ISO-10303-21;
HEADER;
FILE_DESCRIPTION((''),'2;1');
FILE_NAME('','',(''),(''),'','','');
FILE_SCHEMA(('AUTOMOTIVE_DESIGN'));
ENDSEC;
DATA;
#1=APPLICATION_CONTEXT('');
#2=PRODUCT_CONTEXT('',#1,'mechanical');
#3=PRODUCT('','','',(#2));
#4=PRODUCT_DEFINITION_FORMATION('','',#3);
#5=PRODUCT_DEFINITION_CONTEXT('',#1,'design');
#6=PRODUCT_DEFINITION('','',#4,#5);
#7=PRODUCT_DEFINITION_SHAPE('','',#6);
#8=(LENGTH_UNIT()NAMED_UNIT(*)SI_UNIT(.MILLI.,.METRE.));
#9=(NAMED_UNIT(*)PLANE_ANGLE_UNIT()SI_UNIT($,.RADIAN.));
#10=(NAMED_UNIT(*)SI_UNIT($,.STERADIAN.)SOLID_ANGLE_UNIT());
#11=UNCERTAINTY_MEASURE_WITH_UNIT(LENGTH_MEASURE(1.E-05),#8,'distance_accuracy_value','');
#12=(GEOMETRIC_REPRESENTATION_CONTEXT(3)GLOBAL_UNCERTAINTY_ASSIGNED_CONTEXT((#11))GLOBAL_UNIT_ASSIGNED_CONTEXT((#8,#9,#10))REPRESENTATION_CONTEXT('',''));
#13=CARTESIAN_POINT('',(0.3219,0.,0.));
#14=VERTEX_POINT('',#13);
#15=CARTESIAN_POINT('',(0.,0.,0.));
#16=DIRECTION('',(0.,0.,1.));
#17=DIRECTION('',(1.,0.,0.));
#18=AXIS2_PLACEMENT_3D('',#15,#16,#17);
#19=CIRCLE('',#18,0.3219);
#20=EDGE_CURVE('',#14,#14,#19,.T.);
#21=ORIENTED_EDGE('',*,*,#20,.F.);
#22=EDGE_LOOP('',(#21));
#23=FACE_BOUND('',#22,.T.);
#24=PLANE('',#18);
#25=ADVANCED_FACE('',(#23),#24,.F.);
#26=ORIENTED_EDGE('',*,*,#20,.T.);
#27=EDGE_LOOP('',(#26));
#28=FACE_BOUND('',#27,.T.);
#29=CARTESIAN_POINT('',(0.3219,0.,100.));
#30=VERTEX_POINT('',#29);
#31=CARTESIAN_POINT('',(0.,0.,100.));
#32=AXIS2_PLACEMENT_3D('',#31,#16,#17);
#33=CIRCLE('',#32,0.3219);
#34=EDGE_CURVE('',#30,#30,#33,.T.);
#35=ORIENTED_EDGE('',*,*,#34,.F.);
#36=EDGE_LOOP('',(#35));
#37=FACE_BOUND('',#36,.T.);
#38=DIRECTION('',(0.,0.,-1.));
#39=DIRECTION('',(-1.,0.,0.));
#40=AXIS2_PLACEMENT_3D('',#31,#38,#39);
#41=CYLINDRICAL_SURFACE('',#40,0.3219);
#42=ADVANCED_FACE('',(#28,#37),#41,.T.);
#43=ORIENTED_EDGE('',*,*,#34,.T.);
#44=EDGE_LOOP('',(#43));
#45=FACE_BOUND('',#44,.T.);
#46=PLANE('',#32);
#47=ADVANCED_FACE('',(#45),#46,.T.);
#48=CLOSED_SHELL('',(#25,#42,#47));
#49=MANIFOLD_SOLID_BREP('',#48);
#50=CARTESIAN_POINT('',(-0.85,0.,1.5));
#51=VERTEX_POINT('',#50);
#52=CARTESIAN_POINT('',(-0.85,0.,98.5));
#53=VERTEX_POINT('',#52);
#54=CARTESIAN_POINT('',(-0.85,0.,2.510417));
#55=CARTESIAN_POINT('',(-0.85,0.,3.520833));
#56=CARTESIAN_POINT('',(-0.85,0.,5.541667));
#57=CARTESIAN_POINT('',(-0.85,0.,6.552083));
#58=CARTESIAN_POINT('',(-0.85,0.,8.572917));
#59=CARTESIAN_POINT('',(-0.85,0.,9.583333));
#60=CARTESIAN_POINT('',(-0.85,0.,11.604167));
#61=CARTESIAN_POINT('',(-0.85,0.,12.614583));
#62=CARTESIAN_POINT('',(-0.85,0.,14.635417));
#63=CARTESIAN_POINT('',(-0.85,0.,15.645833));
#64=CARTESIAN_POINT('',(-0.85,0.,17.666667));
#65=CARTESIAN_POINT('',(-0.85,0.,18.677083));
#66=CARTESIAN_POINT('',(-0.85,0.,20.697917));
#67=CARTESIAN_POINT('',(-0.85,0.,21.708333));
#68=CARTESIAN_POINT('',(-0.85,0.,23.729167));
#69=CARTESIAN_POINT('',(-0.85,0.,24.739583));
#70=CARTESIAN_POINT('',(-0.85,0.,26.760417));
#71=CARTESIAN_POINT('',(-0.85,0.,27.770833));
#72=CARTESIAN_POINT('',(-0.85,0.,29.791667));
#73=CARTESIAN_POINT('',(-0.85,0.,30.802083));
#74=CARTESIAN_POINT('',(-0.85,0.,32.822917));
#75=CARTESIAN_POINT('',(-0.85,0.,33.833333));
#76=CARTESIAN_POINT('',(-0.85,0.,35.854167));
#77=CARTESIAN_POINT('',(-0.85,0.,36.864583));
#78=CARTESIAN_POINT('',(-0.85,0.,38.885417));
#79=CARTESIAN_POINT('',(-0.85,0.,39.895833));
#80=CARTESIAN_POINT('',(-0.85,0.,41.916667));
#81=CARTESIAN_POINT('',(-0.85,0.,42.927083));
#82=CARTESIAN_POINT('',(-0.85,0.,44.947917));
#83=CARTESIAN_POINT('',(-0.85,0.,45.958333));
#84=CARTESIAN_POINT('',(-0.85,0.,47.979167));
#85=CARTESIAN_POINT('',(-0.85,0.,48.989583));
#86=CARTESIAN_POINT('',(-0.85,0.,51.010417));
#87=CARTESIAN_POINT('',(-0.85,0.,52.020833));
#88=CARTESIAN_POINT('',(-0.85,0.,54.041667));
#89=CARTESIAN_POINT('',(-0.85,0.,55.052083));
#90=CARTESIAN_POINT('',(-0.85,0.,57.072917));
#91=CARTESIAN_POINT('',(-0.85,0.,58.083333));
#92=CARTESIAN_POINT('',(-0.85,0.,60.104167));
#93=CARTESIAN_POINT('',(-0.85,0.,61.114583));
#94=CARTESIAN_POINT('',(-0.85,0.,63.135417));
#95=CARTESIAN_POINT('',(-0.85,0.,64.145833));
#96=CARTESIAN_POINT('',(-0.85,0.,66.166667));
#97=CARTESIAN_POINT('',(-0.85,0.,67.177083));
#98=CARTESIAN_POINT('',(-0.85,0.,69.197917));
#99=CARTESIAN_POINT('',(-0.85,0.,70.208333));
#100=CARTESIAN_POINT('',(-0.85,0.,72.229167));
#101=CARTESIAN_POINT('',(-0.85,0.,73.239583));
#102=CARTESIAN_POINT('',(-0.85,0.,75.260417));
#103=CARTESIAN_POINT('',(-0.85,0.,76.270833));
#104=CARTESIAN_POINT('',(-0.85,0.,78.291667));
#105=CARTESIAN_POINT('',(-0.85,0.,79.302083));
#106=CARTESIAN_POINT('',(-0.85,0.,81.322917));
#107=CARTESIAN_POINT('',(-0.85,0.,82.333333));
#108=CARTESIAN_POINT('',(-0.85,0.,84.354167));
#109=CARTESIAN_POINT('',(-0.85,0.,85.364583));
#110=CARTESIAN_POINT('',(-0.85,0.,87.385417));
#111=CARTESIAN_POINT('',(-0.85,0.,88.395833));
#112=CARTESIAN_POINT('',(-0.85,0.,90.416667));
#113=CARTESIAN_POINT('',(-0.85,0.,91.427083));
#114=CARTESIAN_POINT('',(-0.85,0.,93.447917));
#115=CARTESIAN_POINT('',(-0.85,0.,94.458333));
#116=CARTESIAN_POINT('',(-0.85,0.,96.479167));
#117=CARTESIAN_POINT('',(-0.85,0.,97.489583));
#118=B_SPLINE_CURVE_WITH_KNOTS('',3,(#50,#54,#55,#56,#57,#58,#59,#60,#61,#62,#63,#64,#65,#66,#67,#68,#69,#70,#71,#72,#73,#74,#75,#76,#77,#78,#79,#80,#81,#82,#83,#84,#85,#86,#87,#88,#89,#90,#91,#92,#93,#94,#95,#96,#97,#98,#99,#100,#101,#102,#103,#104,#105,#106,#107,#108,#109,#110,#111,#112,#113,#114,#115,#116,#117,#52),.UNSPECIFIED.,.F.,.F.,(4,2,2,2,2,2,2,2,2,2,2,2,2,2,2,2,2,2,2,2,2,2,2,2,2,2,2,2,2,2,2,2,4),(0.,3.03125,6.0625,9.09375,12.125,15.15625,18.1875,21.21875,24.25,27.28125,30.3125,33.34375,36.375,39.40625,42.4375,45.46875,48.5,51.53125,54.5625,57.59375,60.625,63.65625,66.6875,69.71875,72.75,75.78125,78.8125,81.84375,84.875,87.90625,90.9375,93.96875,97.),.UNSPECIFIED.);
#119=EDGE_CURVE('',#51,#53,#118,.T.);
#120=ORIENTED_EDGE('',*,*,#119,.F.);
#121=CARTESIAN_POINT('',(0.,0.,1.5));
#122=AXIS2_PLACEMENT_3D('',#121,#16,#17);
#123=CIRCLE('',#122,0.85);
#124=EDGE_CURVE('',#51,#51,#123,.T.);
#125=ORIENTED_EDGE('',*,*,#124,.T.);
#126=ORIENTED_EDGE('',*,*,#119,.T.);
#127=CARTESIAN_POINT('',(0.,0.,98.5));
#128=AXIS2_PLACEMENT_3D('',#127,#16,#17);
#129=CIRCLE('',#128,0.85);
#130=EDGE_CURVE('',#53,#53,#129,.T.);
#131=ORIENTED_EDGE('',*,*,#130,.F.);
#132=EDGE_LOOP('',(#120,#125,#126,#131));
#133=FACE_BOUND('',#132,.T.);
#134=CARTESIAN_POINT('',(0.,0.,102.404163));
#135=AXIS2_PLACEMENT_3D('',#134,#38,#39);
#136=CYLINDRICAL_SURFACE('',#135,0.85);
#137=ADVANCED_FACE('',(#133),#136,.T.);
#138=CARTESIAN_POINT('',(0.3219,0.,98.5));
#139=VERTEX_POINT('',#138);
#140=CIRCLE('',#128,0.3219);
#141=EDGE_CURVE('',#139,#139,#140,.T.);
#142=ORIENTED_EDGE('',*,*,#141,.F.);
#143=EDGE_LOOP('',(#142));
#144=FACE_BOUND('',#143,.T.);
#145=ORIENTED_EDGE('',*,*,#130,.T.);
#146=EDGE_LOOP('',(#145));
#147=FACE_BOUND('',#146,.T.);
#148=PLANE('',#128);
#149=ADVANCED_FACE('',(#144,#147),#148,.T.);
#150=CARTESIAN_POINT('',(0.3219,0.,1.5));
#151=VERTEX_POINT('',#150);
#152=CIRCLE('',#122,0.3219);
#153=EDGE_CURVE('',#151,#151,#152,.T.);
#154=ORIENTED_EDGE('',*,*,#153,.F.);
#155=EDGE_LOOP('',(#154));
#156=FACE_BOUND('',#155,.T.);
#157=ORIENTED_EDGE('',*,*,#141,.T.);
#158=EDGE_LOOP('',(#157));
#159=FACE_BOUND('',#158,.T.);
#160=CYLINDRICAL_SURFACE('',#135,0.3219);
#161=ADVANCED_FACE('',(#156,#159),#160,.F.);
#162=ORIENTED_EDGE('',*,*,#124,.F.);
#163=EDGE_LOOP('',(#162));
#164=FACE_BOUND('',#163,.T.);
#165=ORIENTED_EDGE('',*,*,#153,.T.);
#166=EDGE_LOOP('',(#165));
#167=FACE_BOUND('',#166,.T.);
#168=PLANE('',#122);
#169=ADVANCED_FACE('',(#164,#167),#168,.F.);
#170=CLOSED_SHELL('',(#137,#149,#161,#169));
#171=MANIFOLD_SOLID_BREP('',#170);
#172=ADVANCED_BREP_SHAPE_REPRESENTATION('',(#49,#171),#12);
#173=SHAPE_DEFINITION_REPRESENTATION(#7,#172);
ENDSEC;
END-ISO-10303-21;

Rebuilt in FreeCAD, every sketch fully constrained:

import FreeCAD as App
import Part
import Sketcher
Q = App.Units.Quantity

doc = App.newDocument("Part")
body = doc.addObject("PartDesign::Body", "Body")

sketch1 = body.newObject("Sketcher::SketchObject", "Sketch")
sketch1.AttachmentSupport = (doc.getObject("XY_Plane"), [""])
sketch1.MapMode = "FlatFace"
sketch1.addGeometry(Part.Circle(App.Vector(0, 0, 0), App.Vector(0, 0, 1), 0.32), False)
sketch1.addConstraint(Sketcher.Constraint("Coincident", 0, 3, -1, 1))
sketch1.addConstraint(Sketcher.Constraint("Diameter", 0, Q("0.6438 mm")))
pad1 = body.newObject("PartDesign::Pad", "Pad")
pad1.Profile = sketch1
pad1.Length = 100
body2 = doc.addObject("PartDesign::Body", "Body001")

sketch2 = body2.newObject("Sketcher::SketchObject", "Sketch001")
sketch2.AttachmentSupport = (doc.getObject("XY_Plane001"), [""])
sketch2.MapMode = "FlatFace"
sketch2.AttachmentOffset = App.Placement(App.Vector(0, 0, 1.5), App.Rotation())
sketch2.addGeometry(Part.Circle(App.Vector(0, 0, 0), App.Vector(0, 0, 1), 0.85), False)
sketch2.addGeometry(Part.Circle(App.Vector(0, 0, 0), App.Vector(0, 0, 1), 0.32), False)
sketch2.addConstraint(Sketcher.Constraint("Coincident", 0, 3, -1, 1))
sketch2.addConstraint(Sketcher.Constraint("Coincident", 1, 3, -1, 1))
sketch2.addConstraint(Sketcher.Constraint("Diameter", 0, Q("1.7 mm")))
sketch2.addConstraint(Sketcher.Constraint("Diameter", 1, Q("0.6438 mm")))
pad2 = body2.newObject("PartDesign::Pad", "Pad001")
pad2.Profile = sketch2
pad2.Length = 97

doc.recompute()
